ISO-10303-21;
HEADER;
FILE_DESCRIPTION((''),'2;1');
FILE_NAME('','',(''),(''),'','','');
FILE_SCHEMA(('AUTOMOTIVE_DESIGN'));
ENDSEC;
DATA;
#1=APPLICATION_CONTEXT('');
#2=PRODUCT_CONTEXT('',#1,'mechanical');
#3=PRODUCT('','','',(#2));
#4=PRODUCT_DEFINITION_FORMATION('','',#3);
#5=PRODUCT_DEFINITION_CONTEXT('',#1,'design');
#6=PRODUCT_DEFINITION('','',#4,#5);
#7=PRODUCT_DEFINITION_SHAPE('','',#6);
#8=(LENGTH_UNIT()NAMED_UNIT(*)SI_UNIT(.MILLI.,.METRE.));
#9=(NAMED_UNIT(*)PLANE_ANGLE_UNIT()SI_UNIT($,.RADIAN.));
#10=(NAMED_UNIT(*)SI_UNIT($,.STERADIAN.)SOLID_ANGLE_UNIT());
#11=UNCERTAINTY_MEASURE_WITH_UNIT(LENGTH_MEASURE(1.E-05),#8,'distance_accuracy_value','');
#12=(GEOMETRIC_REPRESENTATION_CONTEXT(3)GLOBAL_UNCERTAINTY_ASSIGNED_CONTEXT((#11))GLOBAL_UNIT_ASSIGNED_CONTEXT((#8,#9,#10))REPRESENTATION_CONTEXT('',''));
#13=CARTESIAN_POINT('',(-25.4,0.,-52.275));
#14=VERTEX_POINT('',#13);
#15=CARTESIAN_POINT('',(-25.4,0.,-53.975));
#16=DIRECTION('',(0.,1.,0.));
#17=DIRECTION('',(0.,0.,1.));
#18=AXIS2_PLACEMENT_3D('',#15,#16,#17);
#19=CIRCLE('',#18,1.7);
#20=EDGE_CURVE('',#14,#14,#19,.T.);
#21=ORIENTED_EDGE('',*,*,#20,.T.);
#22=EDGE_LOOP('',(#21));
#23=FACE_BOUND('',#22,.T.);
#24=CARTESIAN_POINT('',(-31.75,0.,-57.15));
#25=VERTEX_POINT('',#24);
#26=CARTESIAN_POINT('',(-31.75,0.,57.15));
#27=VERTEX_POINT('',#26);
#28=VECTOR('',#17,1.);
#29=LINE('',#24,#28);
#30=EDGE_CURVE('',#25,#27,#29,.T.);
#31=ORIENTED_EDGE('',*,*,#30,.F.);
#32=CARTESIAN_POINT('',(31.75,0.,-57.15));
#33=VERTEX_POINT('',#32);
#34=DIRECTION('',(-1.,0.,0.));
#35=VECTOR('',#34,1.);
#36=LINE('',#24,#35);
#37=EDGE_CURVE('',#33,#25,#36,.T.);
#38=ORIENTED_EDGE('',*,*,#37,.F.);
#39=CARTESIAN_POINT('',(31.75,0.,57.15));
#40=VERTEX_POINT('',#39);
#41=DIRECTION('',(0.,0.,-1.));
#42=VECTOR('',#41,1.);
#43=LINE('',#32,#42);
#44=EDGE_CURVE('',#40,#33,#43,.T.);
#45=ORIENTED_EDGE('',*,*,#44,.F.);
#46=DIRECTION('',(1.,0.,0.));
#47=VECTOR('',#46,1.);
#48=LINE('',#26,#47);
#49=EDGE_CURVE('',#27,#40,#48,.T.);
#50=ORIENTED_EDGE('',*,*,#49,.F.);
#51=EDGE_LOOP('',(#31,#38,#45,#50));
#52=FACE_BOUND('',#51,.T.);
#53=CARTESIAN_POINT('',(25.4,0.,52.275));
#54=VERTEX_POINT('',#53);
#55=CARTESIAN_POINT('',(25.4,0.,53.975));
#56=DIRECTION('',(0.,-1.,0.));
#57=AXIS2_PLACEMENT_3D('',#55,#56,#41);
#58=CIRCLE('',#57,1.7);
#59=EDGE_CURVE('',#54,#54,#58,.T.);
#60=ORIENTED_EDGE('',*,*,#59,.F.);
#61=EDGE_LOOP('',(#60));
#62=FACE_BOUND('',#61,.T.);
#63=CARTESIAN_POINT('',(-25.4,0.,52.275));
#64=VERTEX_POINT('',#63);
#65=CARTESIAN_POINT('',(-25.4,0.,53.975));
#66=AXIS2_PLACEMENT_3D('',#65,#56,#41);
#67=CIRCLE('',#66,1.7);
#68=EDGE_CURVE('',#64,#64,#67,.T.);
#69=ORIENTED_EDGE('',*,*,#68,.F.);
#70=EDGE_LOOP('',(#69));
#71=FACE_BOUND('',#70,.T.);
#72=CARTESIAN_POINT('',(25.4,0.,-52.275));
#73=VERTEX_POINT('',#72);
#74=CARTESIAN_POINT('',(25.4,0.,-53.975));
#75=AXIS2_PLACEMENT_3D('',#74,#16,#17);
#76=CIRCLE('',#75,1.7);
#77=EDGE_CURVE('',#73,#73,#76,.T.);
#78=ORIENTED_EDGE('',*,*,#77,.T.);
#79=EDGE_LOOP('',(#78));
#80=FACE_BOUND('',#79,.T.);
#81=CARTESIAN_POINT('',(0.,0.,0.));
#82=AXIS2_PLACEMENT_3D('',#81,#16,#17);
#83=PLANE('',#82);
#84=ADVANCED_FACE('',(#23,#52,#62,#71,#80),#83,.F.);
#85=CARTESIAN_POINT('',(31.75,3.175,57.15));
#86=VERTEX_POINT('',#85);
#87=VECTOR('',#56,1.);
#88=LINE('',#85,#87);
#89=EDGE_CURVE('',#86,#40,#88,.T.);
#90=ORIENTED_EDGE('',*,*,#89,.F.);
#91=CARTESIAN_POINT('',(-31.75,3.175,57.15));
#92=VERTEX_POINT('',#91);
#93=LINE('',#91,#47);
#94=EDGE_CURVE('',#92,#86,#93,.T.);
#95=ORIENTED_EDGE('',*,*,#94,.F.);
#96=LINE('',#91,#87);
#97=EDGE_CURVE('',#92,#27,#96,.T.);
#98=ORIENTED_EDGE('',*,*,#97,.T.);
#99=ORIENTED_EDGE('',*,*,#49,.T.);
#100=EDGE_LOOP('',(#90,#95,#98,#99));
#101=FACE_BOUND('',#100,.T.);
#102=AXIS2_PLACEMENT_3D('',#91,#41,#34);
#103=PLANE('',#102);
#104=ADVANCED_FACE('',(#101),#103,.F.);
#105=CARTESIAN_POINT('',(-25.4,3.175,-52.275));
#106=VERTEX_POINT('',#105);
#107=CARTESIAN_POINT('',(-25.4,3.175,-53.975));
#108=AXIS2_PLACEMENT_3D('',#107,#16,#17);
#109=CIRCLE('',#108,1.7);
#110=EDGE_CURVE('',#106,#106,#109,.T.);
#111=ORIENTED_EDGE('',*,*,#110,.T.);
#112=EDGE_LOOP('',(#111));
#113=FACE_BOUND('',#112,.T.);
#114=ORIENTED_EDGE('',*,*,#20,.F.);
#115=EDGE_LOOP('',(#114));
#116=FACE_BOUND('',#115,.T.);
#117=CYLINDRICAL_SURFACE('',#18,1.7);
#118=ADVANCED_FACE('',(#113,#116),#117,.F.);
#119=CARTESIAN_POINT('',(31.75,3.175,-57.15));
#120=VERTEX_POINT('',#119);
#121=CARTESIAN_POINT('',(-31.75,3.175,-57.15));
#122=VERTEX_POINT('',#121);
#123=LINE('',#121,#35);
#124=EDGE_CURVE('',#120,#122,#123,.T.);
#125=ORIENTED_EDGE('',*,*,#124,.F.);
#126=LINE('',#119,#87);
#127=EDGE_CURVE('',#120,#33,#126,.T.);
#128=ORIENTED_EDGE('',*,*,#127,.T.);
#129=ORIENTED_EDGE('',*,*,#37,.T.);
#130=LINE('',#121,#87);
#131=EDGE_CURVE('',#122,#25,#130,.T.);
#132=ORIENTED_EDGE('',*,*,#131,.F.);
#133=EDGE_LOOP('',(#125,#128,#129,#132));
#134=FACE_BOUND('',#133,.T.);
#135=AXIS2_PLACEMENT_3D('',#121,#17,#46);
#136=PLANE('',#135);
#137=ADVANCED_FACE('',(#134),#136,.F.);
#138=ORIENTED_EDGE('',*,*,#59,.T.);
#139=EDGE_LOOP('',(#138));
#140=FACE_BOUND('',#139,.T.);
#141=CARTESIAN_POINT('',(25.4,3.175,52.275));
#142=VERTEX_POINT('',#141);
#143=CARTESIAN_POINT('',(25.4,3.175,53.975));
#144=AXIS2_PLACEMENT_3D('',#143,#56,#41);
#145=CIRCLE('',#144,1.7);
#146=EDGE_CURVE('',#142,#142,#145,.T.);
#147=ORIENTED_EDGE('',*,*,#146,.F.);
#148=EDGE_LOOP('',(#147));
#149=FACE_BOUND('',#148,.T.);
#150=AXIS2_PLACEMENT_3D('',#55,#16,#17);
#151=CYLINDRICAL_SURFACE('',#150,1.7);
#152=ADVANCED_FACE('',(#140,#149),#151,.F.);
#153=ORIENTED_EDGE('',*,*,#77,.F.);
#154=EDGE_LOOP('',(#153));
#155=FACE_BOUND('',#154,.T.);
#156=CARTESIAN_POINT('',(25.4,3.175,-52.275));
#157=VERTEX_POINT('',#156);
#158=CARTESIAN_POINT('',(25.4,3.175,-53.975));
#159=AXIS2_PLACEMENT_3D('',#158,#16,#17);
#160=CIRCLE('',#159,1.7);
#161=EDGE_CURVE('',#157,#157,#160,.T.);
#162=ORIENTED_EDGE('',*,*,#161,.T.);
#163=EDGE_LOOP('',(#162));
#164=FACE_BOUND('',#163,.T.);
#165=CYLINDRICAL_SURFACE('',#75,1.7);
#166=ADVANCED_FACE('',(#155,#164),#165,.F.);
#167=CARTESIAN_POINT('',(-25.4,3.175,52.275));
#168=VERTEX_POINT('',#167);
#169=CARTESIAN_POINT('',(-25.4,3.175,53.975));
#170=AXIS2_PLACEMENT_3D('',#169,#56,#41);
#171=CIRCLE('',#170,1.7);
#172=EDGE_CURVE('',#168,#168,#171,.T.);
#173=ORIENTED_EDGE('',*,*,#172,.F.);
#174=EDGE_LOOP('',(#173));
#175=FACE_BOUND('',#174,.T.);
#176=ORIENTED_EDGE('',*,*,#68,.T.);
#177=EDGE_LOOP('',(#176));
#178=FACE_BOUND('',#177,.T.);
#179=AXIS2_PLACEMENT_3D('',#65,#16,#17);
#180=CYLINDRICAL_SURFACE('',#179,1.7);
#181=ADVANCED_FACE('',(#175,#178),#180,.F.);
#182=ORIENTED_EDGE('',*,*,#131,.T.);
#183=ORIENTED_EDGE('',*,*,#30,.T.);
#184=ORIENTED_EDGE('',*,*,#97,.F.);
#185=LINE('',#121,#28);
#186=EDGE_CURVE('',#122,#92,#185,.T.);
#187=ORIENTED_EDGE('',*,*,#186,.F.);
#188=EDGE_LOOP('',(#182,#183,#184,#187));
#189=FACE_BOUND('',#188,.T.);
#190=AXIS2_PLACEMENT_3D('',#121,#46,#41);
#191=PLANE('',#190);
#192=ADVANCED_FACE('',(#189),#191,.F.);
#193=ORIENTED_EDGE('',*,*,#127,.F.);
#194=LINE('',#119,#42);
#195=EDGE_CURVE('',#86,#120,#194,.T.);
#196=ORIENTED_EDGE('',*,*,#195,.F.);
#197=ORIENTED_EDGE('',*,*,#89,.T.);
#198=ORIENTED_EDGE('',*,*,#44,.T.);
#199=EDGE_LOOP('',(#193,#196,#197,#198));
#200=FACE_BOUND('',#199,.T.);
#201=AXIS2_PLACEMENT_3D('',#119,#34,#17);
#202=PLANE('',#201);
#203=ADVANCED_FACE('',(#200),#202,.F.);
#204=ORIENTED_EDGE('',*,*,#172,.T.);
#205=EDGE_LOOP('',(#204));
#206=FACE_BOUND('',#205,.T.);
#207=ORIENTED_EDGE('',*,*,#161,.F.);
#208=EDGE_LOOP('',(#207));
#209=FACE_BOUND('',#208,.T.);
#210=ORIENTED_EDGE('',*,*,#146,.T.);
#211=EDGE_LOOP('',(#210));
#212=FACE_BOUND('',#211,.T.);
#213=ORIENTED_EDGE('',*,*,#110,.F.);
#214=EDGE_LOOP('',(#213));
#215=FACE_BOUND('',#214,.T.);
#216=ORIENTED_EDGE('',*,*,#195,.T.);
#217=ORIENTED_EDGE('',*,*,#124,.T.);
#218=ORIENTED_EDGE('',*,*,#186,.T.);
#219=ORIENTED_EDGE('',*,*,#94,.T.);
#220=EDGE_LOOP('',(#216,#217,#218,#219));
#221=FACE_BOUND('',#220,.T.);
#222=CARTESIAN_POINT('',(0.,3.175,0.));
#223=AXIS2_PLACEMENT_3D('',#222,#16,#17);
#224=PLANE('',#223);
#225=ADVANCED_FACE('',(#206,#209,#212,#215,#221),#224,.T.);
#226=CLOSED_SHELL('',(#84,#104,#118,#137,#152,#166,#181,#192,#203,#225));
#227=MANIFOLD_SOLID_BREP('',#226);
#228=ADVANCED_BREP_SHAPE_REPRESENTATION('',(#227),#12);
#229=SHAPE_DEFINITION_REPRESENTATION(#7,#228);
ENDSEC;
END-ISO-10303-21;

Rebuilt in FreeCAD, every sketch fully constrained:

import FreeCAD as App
import Part
import Sketcher
Q = App.Units.Quantity


def add_polygon(sketch, points):
    """Adds a closed chain of lines whose ends are joined by coincident constraints."""
    first, n = sketch.GeometryCount, len(points)
    for a, b in zip(points, points[1:] + points[:1]):
        sketch.addGeometry(Part.LineSegment(App.Vector(*a, 0), App.Vector(*b, 0)), False)
    for i in range(n):
        sketch.addConstraint(Sketcher.Constraint("Coincident", first + i, 2, first + (i + 1) % n, 1))

doc = App.newDocument("Part")
params = doc.addObject("Spreadsheet::Sheet", "Params")
for row, (alias, value) in enumerate([
    ("sketch1_width", "2.5 in"),
    ("sketch1_height", "4.5 in"),
    ("pad1_length", "0.125 in"),
], start=1):
    params.set(f"A{row}", alias)
    params.set(f"B{row}", "=" + value)
    params.setAlias(f"B{row}", alias)

body = doc.addObject("PartDesign::Body", "Body")

# Sketch on XZ plane
sketch1 = doc.addObject("Sketcher::SketchObject", "Sketch")
body.addObject(sketch1)
sketch1.AttachmentSupport = (doc.XZ_Plane, [""])
sketch1.MapMode = "FlatFace"
add_polygon(sketch1, [(-32, -57), (-32, 57), (32, 57), (32, -57)])  # lines 0-3
sketch1.addConstraint([
    Sketcher.Constraint("Vertical", 0),
    Sketcher.Constraint("Horizontal", 1),
    Sketcher.Constraint("Vertical", 2),
    Sketcher.Constraint("Horizontal", 3),
    Sketcher.Constraint("Symmetric", 0, 2, 2, 2, -1, 1),
    Sketcher.Constraint("DistanceX", 1, 1, 1, 2, Q("2.5 in")),
    Sketcher.Constraint("DistanceY", 0, 1, 0, 2, Q("4.5 in")),
])
sketch1.setExpression("Constraints[9]", "Params.sketch1_width")
sketch1.setExpression("Constraints[10]", "Params.sketch1_height")
pad1 = doc.addObject("PartDesign::Pad", "Pad")
body.addObject(pad1)
pad1.Profile = sketch1
pad1.setExpression("Length", "Params.pad1_length")
pad1.Reversed = True

# Sketch on XZ plane
sketch2 = doc.addObject("Sketcher::SketchObject", "Sketch001")
body.addObject(sketch2)
sketch2.AttachmentSupport = (doc.XZ_Plane, [""])
sketch2.MapMode = "FlatFace"
sketch2.AttachmentOffset = App.Placement(App.Vector(0, 0, -0.125 * 25.4), App.Rotation())
sketch2.addGeometry([
    Part.Circle(App.Vector(-25.4, -54, 0), App.Vector(0, 0, 1), 1.7),
    Part.Circle(App.Vector(25.4, -54, 0), App.Vector(0, 0, 1), 1.7),
], False)
sketch2.addConstraint([
    Sketcher.Constraint("Equal", 0, 1),
    Sketcher.Constraint("Symmetric", 0, 3, 1, 3, -2),
    Sketcher.Constraint("DistanceX", 0, 3, -1, 1, Q("1 in")),
    Sketcher.Constraint("Diameter", 0, 3.4),
    Sketcher.Constraint("DistanceY", 0, 3, -1, 1, Q("2.125 in")),
])
pocket1 = doc.addObject("PartDesign::Pocket", "Pocket")
body.addObject(pocket1)
pocket1.Profile = sketch2
pocket1.Type = "ThroughAll"
pocket1.Reversed = True
doc.recompute()

mirrored = doc.addObject("PartDesign::Mirrored", "Mirrored")
body.addObject(mirrored)
mirrored.Originals = [pocket1]
mirrored.MirrorPlane = (doc.XY_Plane, [""])
body.Tip = mirrored

doc.recompute()
